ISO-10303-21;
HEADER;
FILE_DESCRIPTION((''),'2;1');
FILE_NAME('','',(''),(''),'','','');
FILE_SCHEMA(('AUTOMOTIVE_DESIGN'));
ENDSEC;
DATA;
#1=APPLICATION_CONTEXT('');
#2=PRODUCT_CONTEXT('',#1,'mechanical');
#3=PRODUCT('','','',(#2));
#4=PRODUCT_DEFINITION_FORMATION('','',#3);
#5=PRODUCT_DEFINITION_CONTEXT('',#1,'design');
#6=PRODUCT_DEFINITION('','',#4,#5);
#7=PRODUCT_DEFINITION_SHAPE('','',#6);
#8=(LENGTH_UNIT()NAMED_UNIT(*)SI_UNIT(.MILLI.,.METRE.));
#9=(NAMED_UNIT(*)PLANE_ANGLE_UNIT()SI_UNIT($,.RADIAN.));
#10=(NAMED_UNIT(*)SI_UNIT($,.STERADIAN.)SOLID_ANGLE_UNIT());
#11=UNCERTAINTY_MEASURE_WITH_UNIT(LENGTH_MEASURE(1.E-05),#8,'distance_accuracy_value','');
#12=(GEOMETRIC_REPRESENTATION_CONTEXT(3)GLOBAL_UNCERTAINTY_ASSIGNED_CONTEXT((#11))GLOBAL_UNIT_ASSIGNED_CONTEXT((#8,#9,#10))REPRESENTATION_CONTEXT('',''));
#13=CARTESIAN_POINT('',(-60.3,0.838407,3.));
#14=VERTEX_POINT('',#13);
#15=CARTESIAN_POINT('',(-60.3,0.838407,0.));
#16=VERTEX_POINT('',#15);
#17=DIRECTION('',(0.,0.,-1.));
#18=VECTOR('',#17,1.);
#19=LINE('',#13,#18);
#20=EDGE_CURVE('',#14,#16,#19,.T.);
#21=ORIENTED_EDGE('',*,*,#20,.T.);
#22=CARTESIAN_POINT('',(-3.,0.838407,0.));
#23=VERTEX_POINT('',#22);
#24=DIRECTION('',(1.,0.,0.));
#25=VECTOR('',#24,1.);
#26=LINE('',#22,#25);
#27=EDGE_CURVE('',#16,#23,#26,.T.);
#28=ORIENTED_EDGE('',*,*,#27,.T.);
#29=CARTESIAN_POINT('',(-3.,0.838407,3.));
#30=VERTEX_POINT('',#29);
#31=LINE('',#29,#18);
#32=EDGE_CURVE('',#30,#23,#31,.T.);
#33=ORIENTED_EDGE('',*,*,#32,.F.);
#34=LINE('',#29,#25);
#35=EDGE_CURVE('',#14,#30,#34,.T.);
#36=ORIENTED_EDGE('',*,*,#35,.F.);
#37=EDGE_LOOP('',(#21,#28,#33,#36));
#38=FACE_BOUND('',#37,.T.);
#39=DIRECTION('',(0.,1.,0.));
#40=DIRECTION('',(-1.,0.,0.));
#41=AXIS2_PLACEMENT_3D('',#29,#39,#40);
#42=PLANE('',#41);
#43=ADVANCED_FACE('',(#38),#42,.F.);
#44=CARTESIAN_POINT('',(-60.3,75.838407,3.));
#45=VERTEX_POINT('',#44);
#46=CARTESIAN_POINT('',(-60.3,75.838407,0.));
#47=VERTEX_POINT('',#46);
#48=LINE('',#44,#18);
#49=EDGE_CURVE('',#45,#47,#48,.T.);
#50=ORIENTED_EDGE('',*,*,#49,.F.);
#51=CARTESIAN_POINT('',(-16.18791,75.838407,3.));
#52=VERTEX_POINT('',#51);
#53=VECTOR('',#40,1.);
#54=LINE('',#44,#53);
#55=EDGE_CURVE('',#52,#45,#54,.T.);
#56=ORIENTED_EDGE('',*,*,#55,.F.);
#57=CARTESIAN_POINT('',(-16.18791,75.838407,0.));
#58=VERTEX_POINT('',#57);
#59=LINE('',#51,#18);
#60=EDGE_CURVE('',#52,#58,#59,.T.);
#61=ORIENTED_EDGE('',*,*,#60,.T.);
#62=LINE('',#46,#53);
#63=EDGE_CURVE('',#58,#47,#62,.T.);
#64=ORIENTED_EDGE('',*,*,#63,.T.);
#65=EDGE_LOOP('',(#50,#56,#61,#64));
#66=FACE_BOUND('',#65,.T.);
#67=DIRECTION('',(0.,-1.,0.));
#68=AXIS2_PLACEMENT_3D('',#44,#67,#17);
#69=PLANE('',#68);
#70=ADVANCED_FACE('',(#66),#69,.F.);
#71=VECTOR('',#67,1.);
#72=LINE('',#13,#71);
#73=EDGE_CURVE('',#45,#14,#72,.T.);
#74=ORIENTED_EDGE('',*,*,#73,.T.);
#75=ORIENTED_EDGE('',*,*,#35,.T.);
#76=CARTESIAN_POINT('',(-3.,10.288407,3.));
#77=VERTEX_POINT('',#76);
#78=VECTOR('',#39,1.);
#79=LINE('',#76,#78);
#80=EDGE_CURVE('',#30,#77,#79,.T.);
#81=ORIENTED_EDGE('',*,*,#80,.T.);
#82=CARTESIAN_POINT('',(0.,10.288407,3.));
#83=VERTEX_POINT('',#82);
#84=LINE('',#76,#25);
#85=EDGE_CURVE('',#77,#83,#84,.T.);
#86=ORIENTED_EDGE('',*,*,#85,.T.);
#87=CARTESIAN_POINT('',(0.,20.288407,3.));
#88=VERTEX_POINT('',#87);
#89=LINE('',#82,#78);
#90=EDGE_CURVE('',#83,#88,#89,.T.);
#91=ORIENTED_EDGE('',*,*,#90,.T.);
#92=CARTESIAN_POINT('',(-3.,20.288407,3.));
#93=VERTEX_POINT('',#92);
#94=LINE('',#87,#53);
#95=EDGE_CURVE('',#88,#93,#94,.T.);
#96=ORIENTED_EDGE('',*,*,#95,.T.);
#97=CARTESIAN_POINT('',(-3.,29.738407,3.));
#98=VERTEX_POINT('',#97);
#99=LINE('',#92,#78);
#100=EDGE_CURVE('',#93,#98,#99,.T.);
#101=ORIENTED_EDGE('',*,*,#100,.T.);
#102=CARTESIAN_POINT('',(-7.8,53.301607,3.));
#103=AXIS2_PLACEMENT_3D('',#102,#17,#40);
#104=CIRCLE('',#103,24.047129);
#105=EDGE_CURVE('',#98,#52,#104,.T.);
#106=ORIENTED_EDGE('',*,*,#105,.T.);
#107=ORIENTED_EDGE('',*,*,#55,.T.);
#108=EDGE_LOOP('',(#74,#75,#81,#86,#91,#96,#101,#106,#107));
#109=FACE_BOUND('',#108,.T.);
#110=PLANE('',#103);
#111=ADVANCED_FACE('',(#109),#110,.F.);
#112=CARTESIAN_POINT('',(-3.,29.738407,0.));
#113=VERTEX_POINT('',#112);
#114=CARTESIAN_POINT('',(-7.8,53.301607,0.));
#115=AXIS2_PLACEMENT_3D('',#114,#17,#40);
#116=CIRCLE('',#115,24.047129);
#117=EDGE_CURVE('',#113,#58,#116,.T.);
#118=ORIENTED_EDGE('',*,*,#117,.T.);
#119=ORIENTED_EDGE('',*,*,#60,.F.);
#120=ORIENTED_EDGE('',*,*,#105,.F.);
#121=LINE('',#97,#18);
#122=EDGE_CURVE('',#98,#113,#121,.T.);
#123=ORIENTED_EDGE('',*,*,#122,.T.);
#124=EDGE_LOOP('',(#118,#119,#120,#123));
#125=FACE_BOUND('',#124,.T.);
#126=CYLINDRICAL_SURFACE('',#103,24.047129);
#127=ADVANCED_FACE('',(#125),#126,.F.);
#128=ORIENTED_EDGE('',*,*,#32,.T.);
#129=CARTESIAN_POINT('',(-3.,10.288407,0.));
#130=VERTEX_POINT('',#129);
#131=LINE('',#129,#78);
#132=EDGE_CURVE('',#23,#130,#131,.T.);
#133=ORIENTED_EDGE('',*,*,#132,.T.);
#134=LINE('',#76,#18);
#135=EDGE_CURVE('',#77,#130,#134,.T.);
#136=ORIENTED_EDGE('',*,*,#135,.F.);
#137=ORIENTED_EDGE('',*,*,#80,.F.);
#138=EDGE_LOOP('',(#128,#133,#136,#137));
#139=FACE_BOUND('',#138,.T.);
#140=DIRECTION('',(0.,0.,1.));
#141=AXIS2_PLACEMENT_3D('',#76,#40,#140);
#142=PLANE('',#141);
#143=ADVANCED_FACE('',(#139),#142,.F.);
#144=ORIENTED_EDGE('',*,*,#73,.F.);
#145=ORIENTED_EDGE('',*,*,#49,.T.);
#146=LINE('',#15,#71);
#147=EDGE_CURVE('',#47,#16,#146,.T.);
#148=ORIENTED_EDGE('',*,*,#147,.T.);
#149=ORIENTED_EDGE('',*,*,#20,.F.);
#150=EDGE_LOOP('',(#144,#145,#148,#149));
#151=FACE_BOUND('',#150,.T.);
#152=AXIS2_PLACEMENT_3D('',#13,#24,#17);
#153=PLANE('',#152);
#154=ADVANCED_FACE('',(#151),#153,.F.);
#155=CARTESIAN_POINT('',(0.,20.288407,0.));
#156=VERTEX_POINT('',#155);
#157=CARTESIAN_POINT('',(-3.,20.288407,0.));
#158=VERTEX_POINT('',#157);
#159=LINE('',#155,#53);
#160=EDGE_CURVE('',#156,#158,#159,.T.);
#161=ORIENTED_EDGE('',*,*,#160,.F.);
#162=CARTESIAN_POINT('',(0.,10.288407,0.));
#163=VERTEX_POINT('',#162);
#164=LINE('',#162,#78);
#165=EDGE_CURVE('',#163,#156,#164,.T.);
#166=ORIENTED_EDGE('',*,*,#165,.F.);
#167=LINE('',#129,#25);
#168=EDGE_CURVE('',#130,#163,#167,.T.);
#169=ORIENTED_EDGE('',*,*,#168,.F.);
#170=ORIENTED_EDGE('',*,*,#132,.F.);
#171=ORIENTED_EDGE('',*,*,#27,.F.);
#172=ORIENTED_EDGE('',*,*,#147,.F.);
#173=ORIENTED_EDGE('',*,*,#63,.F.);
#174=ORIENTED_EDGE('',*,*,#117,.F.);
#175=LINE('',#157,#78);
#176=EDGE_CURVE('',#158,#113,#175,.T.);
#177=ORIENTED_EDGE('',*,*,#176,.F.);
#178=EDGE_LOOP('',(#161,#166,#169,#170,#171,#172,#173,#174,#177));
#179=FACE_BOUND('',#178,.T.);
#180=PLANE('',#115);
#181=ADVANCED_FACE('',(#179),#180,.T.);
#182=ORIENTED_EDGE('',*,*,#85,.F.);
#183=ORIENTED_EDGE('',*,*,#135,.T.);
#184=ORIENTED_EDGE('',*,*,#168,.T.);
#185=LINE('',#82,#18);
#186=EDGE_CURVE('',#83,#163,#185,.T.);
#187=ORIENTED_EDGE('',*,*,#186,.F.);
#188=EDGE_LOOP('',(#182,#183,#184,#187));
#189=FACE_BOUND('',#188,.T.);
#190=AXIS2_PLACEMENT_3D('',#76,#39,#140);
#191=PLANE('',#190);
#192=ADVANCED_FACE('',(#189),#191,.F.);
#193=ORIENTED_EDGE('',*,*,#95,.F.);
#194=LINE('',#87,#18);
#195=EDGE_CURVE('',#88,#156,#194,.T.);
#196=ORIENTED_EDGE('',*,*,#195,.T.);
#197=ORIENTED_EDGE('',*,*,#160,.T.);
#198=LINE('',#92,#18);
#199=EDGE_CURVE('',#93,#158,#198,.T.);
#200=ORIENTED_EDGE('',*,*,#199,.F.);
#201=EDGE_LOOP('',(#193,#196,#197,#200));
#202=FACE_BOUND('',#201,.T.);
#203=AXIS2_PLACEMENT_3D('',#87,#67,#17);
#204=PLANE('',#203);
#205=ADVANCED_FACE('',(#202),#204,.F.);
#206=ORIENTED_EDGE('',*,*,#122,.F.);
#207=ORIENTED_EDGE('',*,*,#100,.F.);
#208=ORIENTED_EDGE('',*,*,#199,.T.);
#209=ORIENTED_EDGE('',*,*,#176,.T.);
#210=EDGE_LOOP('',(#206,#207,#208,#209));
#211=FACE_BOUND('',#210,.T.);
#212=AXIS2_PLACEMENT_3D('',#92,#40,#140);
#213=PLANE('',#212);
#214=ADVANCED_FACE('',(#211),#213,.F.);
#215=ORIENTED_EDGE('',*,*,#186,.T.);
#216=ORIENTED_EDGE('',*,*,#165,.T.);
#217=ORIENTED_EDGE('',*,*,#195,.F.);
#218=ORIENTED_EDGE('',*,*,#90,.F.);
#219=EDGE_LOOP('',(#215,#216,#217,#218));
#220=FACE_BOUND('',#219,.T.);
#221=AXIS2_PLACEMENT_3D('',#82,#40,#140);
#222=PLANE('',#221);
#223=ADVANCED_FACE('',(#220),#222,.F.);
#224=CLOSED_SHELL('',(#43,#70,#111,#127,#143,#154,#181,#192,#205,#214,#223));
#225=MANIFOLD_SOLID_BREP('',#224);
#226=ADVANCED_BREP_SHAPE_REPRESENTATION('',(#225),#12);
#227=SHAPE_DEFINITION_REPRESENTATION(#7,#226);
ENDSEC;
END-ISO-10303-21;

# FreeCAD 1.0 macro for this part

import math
import FreeCAD as App
import Part
import Sketcher
from FreeCAD import Vector
Q = App.Units.Quantity

doc = App.newDocument("Part")
body = doc.addObject("PartDesign::Body", "Body")

# Sketch on XY plane
sketch1 = body.newObject("Sketcher::SketchObject", "Sketch")
sketch1.AttachmentSupport = (doc.getObject("XY_Plane"), [""])
sketch1.MapMode = "FlatFace"
sketch1.addGeometry(Part.LineSegment(Vector(-60.3, 0.8, 0), Vector(-3, 0.8, 0)), False)
sketch1.addGeometry(Part.LineSegment(Vector(-3, 0.8, 0), Vector(-3, 10.3, 0)), False)
sketch1.addGeometry(Part.LineSegment(Vector(-3, 10.3, 0), Vector(0, 10.3, 0)), False)
sketch1.addGeometry(Part.LineSegment(Vector(0, 10.3, 0), Vector(0, 20.3, 0)), False)
sketch1.addGeometry(Part.LineSegment(Vector(0, 20.3, 0), Vector(-3, 20.3, 0)), False)
sketch1.addGeometry(Part.LineSegment(Vector(-3, 20.3, 0), Vector(-3, 29.7, 0)), False)
sketch1.addGeometry(Part.ArcOfCircle(Part.Circle(Vector(-7.8, 53.3, 0), Vector(0, 0, 1), 24), math.radians(110), math.radians(282)), False)
sketch1.addGeometry(Part.LineSegment(Vector(-16.2, 75.8, 0), Vector(-60.3, 75.8, 0)), False)
sketch1.addGeometry(Part.LineSegment(Vector(-60.3, 75.8, 0), Vector(-60.3, 0.8, 0)), False)
sketch1.addConstraint(Sketcher.Constraint("Coincident", 0, 2, 1, 1))
sketch1.addConstraint(Sketcher.Constraint("Coincident", 1, 2, 2, 1))
sketch1.addConstraint(Sketcher.Constraint("Coincident", 2, 2, 3, 1))
sketch1.addConstraint(Sketcher.Constraint("Coincident", 3, 2, 4, 1))
sketch1.addConstraint(Sketcher.Constraint("Coincident", 4, 2, 5, 1))
sketch1.addConstraint(Sketcher.Constraint("Coincident", 5, 2, 6, 2))
sketch1.addConstraint(Sketcher.Constraint("Coincident", 6, 1, 7, 1))
sketch1.addConstraint(Sketcher.Constraint("Coincident", 7, 2, 8, 1))
sketch1.addConstraint(Sketcher.Constraint("Coincident", 8, 2, 0, 1))
sketch1.addConstraint(Sketcher.Constraint("Horizontal", 0))
sketch1.addConstraint(Sketcher.Constraint("Vertical", 1))
sketch1.addConstraint(Sketcher.Constraint("Horizontal", 2))
sketch1.addConstraint(Sketcher.Constraint("Vertical", 3))
sketch1.addConstraint(Sketcher.Constraint("Horizontal", 4))
sketch1.addConstraint(Sketcher.Constraint("Vertical", 5))
sketch1.addConstraint(Sketcher.Constraint("Horizontal", 7))
sketch1.addConstraint(Sketcher.Constraint("Vertical", 8))
sketch1.addConstraint(Sketcher.Constraint("PointOnObject", 2, 2, -2))
sketch1.addConstraint(Sketcher.Constraint("Vertical", 1, 2, 4, 2))
sketch1.addConstraint(Sketcher.Constraint("Equal", 1, 5))
sketch1.addConstraint(Sketcher.Constraint("DistanceX", 2, 1, 2, 2, Q("3 mm")))
sketch1.addConstraint(Sketcher.Constraint("DistanceY", 3, 1, 3, 2, Q("10 mm")))
sketch1.addConstraint(Sketcher.Constraint("DistanceY", 8, 2, 8, 1, Q("75 mm")))
sketch1.addConstraint(Sketcher.Constraint("DistanceX", 0, 1, 0, 2, Q("57.3 mm")))
sketch1.addConstraint(Sketcher.Constraint("DistanceY", 1, 1, 1, 2, Q("9.45 mm")))
sketch1.addConstraint(Sketcher.Constraint("DistanceX", 6, 3, -1, 1, Q("7.8 mm")))
sketch1.addConstraint(Sketcher.Constraint("Radius", 6, Q("24.047129 mm")))
sketch1.addConstraint(Sketcher.Constraint("DistanceY", -1, 1, 6, 3, Q("53.301607 mm")))
pad1 = body.newObject("PartDesign::Pad", "Pad")
pad1.Profile = sketch1
pad1.Length = 3

doc.recompute()
